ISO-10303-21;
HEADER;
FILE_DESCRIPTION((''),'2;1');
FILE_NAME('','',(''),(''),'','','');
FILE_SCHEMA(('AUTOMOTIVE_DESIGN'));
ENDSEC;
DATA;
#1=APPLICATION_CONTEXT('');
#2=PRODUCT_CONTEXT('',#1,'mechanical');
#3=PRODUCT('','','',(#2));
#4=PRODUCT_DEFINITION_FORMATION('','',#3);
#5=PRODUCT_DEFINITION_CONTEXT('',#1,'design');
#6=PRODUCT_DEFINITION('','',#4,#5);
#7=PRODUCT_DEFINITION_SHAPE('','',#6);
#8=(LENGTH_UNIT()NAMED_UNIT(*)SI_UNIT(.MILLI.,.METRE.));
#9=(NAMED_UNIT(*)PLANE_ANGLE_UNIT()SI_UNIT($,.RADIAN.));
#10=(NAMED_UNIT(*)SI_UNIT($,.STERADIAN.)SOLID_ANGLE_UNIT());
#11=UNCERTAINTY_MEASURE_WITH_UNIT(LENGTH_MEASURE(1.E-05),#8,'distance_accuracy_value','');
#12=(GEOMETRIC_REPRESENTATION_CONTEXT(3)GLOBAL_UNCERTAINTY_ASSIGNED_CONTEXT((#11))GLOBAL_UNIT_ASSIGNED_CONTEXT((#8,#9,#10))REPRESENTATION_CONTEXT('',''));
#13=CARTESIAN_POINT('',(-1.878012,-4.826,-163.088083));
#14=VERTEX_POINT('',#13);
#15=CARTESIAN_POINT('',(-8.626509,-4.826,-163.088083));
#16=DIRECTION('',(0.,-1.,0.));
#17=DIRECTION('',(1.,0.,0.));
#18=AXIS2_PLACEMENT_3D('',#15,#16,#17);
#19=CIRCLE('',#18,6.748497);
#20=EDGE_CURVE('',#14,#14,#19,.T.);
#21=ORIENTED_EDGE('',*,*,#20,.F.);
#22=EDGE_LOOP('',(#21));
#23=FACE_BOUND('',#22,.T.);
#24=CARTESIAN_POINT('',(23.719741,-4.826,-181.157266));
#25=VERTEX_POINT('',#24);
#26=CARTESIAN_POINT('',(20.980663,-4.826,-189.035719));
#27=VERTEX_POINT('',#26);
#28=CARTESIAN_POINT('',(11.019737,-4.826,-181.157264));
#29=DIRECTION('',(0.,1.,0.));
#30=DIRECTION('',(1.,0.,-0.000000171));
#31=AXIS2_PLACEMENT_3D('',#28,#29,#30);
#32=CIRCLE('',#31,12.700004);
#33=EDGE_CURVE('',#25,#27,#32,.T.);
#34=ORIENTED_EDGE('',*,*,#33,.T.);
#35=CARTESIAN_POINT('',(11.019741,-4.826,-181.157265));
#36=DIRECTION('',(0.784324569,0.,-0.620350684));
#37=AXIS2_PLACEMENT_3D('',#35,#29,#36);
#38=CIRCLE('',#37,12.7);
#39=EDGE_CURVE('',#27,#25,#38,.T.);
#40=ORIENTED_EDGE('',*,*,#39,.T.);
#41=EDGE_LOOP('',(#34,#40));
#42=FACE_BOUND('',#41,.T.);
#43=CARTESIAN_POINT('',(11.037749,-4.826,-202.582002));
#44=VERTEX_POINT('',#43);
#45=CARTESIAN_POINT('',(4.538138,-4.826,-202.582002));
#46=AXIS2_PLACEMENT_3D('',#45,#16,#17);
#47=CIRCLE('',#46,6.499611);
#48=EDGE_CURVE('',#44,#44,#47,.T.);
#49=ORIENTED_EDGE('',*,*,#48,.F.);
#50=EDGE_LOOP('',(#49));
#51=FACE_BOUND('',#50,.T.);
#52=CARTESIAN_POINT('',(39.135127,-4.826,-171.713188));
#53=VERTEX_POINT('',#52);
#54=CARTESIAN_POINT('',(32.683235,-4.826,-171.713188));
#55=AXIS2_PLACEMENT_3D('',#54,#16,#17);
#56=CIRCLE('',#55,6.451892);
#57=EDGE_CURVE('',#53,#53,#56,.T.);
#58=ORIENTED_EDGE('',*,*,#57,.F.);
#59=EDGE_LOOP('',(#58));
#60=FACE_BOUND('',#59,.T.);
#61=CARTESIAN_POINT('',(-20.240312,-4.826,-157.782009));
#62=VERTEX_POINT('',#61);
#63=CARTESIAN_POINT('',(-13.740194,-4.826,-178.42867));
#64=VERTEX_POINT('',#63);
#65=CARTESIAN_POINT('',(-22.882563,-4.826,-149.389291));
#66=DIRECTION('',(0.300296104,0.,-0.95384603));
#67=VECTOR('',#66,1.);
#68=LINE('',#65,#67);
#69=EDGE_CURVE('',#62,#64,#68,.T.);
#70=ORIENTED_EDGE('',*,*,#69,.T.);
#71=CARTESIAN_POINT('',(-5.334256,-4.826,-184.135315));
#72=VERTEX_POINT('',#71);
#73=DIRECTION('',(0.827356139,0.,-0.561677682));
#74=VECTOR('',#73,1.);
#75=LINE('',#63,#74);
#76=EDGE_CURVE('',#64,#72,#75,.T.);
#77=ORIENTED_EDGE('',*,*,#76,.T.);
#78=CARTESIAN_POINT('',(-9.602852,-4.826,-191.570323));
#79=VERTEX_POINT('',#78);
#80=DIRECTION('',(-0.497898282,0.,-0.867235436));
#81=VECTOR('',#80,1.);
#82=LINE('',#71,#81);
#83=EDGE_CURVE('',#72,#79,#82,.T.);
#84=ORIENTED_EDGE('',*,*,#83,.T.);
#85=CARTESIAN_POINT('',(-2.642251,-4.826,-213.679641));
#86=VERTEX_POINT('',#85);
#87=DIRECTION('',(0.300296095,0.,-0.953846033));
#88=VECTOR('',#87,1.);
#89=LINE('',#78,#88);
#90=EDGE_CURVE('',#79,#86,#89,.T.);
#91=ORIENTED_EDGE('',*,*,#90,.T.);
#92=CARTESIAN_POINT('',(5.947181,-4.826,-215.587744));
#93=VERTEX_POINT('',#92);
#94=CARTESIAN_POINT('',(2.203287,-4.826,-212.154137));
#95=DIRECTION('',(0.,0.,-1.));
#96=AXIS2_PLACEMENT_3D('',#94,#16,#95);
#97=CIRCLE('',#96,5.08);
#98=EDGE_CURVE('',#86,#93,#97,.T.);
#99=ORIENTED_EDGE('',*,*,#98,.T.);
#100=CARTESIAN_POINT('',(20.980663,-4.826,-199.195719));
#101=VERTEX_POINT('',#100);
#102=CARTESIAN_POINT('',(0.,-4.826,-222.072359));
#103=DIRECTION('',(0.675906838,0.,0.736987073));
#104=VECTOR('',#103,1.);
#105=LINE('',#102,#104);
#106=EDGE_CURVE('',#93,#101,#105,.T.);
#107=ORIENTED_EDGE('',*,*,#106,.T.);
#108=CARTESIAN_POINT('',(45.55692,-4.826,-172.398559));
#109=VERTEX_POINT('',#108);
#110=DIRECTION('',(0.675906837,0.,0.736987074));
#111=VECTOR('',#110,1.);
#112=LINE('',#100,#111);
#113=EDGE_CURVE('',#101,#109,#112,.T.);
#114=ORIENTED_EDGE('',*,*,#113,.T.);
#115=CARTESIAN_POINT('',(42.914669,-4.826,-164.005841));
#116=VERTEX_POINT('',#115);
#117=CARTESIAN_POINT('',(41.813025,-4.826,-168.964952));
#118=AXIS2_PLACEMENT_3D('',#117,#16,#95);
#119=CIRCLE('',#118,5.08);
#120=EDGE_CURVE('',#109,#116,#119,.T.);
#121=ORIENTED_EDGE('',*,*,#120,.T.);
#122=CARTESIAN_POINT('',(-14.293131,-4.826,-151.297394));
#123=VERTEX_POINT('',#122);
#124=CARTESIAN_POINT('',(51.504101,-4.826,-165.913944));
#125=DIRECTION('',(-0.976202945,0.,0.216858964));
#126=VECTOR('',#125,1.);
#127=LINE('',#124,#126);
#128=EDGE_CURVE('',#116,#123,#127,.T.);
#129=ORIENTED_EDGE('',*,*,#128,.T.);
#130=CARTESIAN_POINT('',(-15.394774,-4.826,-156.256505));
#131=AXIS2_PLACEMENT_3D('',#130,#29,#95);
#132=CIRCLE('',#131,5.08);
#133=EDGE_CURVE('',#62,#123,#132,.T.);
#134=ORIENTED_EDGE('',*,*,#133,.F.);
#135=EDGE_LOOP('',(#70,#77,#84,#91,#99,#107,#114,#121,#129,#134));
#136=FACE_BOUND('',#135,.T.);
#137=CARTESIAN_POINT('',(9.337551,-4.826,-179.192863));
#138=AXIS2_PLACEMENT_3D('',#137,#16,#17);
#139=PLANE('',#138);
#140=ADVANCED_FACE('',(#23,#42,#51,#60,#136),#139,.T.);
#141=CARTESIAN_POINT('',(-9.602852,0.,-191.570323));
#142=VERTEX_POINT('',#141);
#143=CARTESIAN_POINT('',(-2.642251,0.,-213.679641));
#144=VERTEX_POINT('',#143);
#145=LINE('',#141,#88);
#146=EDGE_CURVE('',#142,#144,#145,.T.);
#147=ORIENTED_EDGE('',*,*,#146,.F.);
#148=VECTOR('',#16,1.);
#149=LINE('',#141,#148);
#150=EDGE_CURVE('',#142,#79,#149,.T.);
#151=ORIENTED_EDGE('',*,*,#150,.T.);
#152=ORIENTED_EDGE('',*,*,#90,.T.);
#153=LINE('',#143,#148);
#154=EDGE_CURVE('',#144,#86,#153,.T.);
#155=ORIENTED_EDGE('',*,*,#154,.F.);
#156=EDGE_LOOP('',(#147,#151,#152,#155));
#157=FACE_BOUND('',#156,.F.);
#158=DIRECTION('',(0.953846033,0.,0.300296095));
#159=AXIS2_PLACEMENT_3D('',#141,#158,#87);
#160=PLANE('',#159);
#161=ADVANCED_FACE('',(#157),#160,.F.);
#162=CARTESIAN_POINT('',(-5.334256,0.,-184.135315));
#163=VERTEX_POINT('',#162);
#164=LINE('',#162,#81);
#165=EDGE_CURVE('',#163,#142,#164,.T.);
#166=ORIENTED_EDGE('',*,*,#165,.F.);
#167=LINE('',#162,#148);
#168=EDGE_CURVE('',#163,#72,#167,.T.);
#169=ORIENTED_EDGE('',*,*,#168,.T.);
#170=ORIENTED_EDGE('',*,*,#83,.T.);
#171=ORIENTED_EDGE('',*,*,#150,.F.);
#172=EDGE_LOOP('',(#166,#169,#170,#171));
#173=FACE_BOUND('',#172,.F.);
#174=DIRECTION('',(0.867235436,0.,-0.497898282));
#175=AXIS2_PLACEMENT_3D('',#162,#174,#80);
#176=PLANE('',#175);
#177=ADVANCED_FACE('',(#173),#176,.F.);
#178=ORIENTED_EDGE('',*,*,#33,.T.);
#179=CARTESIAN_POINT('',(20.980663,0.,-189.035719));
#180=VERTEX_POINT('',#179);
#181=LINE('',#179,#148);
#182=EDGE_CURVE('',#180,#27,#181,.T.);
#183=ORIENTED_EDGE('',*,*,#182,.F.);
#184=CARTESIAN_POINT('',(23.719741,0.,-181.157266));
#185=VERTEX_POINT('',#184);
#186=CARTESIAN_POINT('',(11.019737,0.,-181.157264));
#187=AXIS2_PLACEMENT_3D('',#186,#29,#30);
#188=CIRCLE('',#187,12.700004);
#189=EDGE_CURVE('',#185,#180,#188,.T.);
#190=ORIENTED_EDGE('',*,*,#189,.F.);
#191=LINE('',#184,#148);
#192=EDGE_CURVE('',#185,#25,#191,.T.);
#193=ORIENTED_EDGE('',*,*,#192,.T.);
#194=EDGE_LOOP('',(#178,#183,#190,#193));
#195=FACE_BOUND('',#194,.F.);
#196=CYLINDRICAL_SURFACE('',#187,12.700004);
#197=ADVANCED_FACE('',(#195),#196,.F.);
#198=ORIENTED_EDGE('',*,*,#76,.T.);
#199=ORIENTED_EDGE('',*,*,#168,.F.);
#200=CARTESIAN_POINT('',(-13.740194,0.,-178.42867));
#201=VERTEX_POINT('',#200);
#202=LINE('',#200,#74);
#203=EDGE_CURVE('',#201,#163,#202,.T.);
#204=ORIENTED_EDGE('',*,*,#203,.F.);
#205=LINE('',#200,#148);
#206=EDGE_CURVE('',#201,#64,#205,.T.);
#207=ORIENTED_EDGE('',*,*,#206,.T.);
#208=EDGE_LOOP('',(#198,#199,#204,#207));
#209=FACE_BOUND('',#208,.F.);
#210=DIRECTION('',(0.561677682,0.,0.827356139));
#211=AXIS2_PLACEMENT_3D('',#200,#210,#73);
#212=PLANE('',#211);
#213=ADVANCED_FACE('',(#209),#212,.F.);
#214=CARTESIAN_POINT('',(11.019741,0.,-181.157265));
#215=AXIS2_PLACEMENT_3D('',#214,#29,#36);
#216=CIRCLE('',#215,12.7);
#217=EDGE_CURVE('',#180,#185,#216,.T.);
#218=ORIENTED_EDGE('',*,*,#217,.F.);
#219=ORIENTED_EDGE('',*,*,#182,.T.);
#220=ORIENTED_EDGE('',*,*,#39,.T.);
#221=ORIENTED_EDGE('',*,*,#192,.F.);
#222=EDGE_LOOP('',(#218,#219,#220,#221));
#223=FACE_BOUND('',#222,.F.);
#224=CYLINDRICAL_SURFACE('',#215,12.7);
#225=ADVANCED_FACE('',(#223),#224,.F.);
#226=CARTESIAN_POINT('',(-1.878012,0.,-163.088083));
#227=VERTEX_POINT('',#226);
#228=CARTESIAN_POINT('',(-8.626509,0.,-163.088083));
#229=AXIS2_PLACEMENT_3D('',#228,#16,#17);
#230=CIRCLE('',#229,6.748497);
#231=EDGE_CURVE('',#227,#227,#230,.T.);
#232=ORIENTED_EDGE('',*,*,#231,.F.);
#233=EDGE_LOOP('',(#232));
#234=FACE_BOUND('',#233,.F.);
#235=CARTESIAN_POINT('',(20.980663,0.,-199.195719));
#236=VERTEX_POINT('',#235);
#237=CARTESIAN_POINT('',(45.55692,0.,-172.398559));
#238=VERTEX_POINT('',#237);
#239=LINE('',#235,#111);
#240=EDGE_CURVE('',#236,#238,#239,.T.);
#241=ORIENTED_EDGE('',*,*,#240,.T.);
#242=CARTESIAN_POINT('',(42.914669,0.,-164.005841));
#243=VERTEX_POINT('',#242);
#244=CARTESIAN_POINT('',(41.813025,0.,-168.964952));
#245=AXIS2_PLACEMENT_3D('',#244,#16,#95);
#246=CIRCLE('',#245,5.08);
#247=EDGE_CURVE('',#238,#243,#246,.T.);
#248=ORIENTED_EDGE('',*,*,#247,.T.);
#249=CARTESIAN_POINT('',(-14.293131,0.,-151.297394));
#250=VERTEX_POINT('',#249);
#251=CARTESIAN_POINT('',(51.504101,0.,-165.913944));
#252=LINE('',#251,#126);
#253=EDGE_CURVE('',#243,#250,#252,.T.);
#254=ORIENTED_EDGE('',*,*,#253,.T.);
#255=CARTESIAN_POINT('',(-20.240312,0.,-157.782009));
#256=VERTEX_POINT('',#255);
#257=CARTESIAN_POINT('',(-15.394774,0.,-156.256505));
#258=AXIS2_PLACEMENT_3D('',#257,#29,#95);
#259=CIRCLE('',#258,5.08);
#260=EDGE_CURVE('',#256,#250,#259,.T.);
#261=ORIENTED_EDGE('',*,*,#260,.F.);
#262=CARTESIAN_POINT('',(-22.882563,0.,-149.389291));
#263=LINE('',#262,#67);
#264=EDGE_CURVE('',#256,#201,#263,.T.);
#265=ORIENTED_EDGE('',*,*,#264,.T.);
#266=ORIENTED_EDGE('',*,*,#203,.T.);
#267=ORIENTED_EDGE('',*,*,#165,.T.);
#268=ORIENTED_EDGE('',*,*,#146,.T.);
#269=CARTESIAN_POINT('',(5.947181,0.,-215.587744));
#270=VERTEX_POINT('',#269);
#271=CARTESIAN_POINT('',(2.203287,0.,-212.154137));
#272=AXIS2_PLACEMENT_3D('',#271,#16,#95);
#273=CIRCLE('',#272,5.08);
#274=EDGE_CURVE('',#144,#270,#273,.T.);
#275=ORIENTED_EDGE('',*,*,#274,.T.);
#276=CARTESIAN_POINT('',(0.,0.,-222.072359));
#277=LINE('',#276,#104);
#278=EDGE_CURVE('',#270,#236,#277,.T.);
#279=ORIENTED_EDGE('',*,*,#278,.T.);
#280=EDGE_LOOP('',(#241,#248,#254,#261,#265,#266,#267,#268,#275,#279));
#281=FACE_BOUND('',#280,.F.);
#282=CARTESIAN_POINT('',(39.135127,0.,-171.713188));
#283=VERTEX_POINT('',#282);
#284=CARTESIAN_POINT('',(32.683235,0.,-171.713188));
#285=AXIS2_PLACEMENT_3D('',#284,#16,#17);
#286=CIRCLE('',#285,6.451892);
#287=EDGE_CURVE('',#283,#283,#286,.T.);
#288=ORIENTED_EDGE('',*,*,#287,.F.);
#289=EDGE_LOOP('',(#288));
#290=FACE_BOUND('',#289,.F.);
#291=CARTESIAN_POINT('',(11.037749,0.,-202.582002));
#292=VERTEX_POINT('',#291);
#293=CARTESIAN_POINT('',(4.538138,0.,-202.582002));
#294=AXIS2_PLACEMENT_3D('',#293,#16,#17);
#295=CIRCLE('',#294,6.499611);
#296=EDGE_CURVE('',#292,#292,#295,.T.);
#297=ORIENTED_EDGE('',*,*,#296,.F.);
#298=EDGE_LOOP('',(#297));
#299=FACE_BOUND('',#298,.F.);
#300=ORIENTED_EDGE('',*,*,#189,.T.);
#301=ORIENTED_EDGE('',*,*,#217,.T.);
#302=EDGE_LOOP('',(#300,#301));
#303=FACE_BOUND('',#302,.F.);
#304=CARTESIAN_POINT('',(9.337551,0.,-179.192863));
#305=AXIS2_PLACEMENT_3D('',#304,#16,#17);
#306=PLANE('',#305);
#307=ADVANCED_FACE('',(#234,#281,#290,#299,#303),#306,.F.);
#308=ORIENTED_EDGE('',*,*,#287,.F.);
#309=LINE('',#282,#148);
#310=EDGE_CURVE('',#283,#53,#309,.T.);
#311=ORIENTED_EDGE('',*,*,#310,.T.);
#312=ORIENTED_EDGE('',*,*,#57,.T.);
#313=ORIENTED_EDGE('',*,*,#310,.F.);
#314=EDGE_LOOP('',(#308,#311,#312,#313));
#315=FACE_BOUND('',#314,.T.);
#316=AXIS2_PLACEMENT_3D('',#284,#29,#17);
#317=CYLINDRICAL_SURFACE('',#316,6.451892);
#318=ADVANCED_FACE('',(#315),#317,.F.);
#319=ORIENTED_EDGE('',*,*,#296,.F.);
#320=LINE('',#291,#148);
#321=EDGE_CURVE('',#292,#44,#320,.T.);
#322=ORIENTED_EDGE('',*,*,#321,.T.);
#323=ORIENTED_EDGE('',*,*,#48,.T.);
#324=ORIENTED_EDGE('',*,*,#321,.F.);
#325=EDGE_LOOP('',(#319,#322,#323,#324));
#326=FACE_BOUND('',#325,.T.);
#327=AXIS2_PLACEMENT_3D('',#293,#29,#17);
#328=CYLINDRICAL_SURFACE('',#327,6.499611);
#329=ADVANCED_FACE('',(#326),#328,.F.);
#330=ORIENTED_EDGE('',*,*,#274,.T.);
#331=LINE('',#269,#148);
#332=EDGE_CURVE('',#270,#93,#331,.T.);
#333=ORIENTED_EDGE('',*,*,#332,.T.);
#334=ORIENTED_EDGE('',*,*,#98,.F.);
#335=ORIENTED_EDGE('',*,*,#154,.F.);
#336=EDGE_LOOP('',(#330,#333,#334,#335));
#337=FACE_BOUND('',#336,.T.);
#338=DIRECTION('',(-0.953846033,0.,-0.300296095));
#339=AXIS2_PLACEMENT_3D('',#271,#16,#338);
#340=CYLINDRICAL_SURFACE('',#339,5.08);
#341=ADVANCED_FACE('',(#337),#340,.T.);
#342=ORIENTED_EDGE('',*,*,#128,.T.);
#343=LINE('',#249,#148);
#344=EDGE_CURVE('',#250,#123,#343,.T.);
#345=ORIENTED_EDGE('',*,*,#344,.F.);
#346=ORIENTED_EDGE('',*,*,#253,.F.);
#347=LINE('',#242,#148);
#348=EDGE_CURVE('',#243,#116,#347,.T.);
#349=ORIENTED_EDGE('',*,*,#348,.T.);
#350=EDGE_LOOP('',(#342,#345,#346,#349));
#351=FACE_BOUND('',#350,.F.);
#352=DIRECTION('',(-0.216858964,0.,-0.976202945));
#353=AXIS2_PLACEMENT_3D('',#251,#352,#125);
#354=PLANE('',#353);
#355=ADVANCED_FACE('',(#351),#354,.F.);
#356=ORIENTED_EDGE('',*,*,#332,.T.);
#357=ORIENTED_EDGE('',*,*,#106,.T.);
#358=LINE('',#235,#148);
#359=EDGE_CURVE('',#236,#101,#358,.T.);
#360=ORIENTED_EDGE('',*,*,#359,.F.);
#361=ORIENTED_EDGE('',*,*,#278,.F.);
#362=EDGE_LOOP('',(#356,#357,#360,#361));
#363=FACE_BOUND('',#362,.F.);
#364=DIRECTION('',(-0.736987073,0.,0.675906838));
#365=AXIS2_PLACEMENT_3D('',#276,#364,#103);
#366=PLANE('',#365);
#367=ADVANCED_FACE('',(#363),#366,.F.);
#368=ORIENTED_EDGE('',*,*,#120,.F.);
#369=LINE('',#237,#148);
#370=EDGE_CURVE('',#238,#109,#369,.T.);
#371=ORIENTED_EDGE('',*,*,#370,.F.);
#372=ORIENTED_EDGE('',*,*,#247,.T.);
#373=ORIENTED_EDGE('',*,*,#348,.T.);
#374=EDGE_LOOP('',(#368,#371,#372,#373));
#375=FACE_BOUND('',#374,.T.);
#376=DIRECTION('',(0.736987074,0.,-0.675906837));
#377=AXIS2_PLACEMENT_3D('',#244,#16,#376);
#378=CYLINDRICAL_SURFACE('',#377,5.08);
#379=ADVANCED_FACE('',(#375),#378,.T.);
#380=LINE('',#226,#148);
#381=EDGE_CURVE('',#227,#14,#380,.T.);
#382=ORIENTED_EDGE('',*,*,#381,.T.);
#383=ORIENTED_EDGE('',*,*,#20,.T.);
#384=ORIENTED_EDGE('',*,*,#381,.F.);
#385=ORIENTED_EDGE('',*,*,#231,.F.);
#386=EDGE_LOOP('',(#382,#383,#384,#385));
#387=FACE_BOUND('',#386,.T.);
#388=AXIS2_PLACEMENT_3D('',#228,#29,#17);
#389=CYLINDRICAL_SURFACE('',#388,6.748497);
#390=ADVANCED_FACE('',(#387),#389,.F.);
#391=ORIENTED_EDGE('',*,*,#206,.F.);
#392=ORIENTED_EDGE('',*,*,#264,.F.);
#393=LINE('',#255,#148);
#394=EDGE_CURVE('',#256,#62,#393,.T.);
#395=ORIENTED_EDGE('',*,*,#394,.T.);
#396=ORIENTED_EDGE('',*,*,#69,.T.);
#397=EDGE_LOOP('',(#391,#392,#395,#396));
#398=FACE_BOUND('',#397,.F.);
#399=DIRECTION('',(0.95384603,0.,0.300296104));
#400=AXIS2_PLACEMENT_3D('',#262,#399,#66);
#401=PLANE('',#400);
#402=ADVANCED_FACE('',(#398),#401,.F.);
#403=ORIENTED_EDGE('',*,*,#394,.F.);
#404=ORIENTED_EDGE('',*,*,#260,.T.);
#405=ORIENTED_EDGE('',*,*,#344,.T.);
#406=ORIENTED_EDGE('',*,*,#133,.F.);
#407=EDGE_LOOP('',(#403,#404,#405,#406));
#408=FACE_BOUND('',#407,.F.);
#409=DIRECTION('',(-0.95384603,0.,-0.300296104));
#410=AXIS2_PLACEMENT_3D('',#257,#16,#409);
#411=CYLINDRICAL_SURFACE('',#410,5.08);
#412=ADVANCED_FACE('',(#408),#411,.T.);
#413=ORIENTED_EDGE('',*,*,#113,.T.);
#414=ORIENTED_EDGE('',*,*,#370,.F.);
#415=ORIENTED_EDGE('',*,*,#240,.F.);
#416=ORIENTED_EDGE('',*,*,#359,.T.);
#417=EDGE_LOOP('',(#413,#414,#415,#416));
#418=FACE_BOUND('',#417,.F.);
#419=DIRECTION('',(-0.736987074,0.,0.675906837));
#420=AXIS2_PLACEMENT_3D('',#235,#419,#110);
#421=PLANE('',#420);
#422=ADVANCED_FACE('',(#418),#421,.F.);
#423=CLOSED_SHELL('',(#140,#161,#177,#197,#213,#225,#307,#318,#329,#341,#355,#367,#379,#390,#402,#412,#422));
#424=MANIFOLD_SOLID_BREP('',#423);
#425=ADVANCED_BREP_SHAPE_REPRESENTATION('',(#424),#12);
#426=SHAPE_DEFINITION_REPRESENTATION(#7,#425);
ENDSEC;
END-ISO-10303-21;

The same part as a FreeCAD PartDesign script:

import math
import FreeCAD as App
import Part
import Sketcher

V = App.Vector
Q = App.Units.Quantity


def edges_at(feature, points):
    """Names of the edges that pass closest to the given points."""
    edges = feature.Shape.Edges
    near = lambda p: min(range(len(edges)), key=lambda i: edges[i].distToShape(Part.Vertex(*p))[0])
    return sorted({f"Edge{near(p) + 1}" for p in points})

doc = App.newDocument("Part")
body = doc.addObject("PartDesign::Body", "Body")

# Sketch on XZ plane
sketch1 = body.newObject("Sketcher::SketchObject", "Sketch")
sketch1.AttachmentSupport = (doc.getObject("XZ_Plane"), [""])
sketch1.MapMode = "FlatFace"
sketch1.addGeometry([
    Part.LineSegment(V(-9.602852, -191.570323, 0), V(0, -222.072359, 0)),  # 0
    Part.LineSegment(V(0, -222.072359, 0), V(20.980663, -199.195719, 0)),  # 1
    Part.LineSegment(V(20.980663, -199.195719, 0), V(51.504101, -165.913944, 0)),  # 2
    Part.LineSegment(V(51.504101, -165.913944, 0), V(-22.882563, -149.389291, 0)),  # 3
    Part.LineSegment(V(-22.882563, -149.389291, 0), V(-13.740194, -178.42867, 0)),  # 4
    Part.LineSegment(V(-13.740194, -178.42867, 0), V(-5.334256, -184.135315, 0)),  # 5
    Part.LineSegment(V(-5.334256, -184.135315, 0), V(-9.602852, -191.570323, 0)),  # 6
    Part.Circle(V(4.538138, -202.582002, 0), V(0, 0, 1), 6.499611),  # 7
    Part.ArcOfCircle(Part.Circle(V(11.019741, -181.157265, 0), V(0, 0, 1), 12.7), math.radians(-0.000003), math.radians(321.658252)),  # 8
    Part.ArcOfCircle(Part.Circle(V(11.019737, -181.157264, 0), V(0, 0, 1), 12.700004), math.radians(-38.341741), math.radians(-0.00001)),  # 9
    Part.Circle(V(-8.626509, -163.088083, 0), V(0, 0, 1), 6.748497),  # 10
    Part.Circle(V(32.683235, -171.713188, 0), V(0, 0, 1), 6.451892),  # 11
], False)
sketch1.addConstraint([
    Sketcher.Constraint("Coincident", 0, 2, 1, 1),
    Sketcher.Constraint("Coincident", 1, 2, 2, 1),
    Sketcher.Constraint("Coincident", 2, 2, 3, 1),
    Sketcher.Constraint("Coincident", 3, 2, 4, 1),
    Sketcher.Constraint("Coincident", 4, 2, 5, 1),
    Sketcher.Constraint("Coincident", 5, 2, 6, 1),
    Sketcher.Constraint("Coincident", 6, 2, 0, 1),
    Sketcher.Constraint("Coincident", 8, 1, 9, 2),
    Sketcher.Constraint("Coincident", 9, 1, 8, 2),
    Sketcher.Constraint("PointOnObject", 0, 2, -2),
    Sketcher.Constraint("Radius", 8, Q("0.5 in")),
    Sketcher.Constraint("Radius", 9, Q("0.5000002 in")),
    Sketcher.Constraint("Distance", 3, Q("3 in")),
    Sketcher.Constraint("Distance", 5, Q("0.4 in")),
    Sketcher.Constraint("DistanceY", 1, 2, 9, 1, Q("0.4 in")),
    Sketcher.Constraint("Diameter", 7, Q("12.999222 mm")),
    Sketcher.Constraint("Diameter", 10, Q("13.496994 mm")),
    Sketcher.Constraint("Diameter", 11, Q("12.903784 mm")),
    Sketcher.Constraint("DistanceY", 7, 3, -1, 1, Q("202.582002 mm")),
    Sketcher.Constraint("DistanceX", -1, 1, 2, 2, Q("51.504101 mm")),
    Sketcher.Constraint("DistanceX", 7, 3, 9, 3, Q("6.481599 mm")),
    Sketcher.Constraint("DistanceX", 9, 3, 11, 3, Q("21.663498 mm")),
    Sketcher.Constraint("DistanceX", 3, 2, 9, 3, Q("33.9023 mm")),
    Sketcher.Constraint("Distance", 1, Q("31.040762 mm")),
    Sketcher.Constraint("Distance", 2, Q("45.159238 mm")),
    Sketcher.Constraint("Distance", 6, Q("8.573229 mm")),
    Sketcher.Constraint("DistanceX", -1, 1, 8, 3, Q("11.019741 mm")),
    Sketcher.Constraint("DistanceX", 10, 3, -1, 1, Q("8.626509 mm")),
    Sketcher.Constraint("DistanceY", 11, 3, -1, 1, Q("171.713188 mm")),
    Sketcher.Constraint("DistanceY", 0, 2, -1, 1, Q("222.072359 mm")),
    Sketcher.Constraint("DistanceY", 1, 2, -1, 1, Q("199.195719 mm")),
    Sketcher.Constraint("DistanceY", 4, 2, -1, 1, Q("178.42867 mm")),
    Sketcher.Constraint("DistanceY", 7, 3, 9, 3, Q("21.424738 mm")),
    Sketcher.Constraint("DistanceY", 9, 3, 10, 3, Q("18.069181 mm")),
    Sketcher.Constraint("DistanceX", 4, 2, 9, 3, Q("24.759931 mm")),
    Sketcher.Constraint("DistanceX", 4, 2, 5, 2, Q("8.405938 mm")),
    Sketcher.Constraint("DistanceY", 6, 2, 5, 2, Q("7.435008 mm")),
    Sketcher.Constraint("DistanceY", 8, 1, -1, 1, Q("181.157266 mm")),
])
pad1 = body.newObject("PartDesign::Pad", "Pad")
pad1.Profile = sketch1
pad1.Length = Q("0.19 in")
doc.recompute()

fillet = body.newObject("PartDesign::Fillet", "Fillet")
fillet.Base = (pad1, edges_at(pad1, [(0, -2.413, -222.072), (51.504, -2.413, -165.914), (-22.883, -2.413, -149.389)]))
fillet.Radius = Q("0.2 in")

doc.recompute()
